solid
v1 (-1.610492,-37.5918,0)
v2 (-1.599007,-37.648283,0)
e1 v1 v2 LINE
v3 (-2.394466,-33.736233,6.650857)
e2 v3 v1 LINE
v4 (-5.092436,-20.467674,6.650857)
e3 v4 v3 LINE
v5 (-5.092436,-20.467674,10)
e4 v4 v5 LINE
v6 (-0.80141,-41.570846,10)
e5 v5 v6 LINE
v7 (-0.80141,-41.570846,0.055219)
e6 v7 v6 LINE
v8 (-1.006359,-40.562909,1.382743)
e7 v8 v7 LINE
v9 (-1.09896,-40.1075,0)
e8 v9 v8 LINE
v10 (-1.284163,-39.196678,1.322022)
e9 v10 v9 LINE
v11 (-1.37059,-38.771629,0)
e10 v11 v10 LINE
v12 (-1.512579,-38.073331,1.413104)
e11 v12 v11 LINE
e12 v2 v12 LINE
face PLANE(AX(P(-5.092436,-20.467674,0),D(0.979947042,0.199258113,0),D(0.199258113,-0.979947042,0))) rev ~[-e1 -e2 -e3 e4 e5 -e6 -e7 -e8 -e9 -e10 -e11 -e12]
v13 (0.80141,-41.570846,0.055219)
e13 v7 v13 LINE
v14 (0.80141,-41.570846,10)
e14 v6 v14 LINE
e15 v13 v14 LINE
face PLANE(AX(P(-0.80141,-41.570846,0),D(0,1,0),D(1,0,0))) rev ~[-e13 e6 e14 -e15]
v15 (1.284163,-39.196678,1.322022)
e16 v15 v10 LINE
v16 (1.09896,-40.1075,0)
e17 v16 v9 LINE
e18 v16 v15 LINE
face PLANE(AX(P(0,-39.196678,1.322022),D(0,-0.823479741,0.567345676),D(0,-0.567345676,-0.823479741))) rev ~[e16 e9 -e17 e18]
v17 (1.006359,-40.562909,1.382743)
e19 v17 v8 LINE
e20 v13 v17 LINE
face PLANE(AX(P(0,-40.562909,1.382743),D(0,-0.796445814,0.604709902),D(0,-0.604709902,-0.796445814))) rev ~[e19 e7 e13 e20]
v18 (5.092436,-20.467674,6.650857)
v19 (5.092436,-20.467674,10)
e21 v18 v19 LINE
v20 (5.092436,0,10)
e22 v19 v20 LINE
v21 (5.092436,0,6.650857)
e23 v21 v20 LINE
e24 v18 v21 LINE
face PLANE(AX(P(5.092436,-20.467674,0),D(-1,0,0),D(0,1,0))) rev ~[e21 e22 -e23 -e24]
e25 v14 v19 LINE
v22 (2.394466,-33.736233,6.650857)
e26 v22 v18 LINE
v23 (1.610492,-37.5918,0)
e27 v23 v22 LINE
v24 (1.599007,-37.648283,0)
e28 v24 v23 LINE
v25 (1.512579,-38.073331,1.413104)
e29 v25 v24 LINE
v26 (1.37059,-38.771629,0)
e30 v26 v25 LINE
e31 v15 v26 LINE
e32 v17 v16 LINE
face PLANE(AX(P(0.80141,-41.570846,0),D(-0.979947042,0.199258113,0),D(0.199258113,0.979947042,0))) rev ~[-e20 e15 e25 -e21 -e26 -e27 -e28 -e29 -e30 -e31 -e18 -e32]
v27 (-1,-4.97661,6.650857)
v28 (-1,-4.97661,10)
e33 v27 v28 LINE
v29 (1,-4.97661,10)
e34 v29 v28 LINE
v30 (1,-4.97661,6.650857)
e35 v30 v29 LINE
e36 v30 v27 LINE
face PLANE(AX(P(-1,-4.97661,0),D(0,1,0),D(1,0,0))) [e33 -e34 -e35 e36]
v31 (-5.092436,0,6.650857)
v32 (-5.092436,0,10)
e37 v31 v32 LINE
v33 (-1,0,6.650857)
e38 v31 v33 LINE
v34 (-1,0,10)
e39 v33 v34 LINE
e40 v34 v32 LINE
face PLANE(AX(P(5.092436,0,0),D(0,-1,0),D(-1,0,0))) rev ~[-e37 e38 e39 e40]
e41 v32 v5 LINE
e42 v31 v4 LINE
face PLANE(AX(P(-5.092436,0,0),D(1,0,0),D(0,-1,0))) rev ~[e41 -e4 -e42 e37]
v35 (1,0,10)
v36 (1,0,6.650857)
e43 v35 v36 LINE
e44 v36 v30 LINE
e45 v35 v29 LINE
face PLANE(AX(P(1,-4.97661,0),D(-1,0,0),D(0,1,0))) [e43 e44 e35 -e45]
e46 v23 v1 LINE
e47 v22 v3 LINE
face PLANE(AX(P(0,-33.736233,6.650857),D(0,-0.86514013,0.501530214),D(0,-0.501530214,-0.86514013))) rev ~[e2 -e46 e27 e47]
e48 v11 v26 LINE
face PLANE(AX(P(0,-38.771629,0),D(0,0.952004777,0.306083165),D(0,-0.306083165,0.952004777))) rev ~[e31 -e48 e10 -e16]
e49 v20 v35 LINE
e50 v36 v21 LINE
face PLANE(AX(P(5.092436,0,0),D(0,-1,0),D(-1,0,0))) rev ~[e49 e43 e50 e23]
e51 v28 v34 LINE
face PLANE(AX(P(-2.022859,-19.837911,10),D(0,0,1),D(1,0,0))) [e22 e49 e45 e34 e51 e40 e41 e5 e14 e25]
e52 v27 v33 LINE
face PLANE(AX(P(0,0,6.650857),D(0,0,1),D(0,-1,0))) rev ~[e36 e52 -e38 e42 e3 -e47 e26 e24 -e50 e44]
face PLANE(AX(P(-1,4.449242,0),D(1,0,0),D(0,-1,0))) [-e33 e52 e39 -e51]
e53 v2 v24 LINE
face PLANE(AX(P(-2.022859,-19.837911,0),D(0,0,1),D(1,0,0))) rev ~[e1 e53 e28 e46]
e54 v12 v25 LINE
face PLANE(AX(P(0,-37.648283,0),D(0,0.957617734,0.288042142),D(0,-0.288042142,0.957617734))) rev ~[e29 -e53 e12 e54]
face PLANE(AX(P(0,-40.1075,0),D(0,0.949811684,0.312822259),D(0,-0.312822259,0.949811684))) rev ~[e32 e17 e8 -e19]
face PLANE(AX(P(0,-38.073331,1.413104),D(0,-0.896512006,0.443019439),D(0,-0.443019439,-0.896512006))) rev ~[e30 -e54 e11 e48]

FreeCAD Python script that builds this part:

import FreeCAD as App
import Part
import Sketcher

V = App.Vector
Q = App.Units.Quantity

doc = App.newDocument("Part")
body = doc.addObject("PartDesign::Body", "Body")

sketch1 = body.newObject("Sketcher::SketchObject", "Sketch")
sketch1.AttachmentSupport = (doc.getObject("XY_Plane"), [""])
sketch1.MapMode = "FlatFace"
sketch1.addGeometry([
    Part.LineSegment(V(-5.1, 0, 0), V(-5.1, -20.5, 0)),
    Part.LineSegment(V(-5.1, -20.5, 0), V(-0.8, -41.6, 0)),
    Part.LineSegment(V(-0.8, -41.6, 0), V(0.8, -41.6, 0)),
    Part.LineSegment(V(0.8, -41.6, 0), V(5.1, -20.5, 0)),
    Part.LineSegment(V(5.1, -20.5, 0), V(5.1, 0, 0)),
    Part.LineSegment(V(5.1, 0, 0), V(-5.1, 0, 0)),
], False)
sketch1.addConstraint([
    Sketcher.Constraint("Coincident", 0, 2, 1, 1),
    Sketcher.Constraint("Coincident", 1, 2, 2, 1),
    Sketcher.Constraint("Coincident", 2, 2, 3, 1),
    Sketcher.Constraint("Coincident", 3, 2, 4, 1),
    Sketcher.Constraint("Coincident", 4, 2, 5, 1),
    Sketcher.Constraint("Coincident", 5, 2, 0, 1),
    Sketcher.Constraint("Vertical", 0),
    Sketcher.Constraint("Horizontal", 2),
    Sketcher.Constraint("Vertical", 4),
    Sketcher.Constraint("Horizontal", 5),
    Sketcher.Constraint("Symmetric", 4, 2, 5, 2, -1, 1),
    Sketcher.Constraint("Horizontal", 0, 2, 3, 2),
    Sketcher.Constraint("Equal", 1, 3),
    Sketcher.Constraint("DistanceX", 2, 1, 2, 2, Q("1.60282 mm")),
    Sketcher.Constraint("DistanceX", 5, 2, 5, 1, Q("10.184872 mm")),
    Sketcher.Constraint("DistanceY", 0, 2, 0, 1, Q("20.467674 mm")),
    Sketcher.Constraint("Distance", 1, Q("21.535013 mm")),
])
pad1 = body.newObject("PartDesign::Pad", "Pad")
pad1.Profile = sketch1
pad1.Length = 10

sketch2 = body.newObject("Sketcher::SketchObject", "Sketch001")
sketch2.AttachmentSupport = (doc.getObject("YZ_Plane"), [""])
sketch2.MapMode = "FlatFace"
sketch2.addGeometry([
    Part.LineSegment(V(-38, -13, 0), V(0, -9, 0)),
    Part.LineSegment(V(0, -9, 0), V(0, 7, 0)),
    Part.LineSegment(V(0, 7, 0), V(-34, 7, 0)),
    Part.LineSegment(V(-34, 7, 0), V(-38, 0, 0)),
    Part.LineSegment(V(-38, 0, 0), V(-38, -13, 0)),
], False)
sketch2.addConstraint([
    Sketcher.Constraint("Coincident", 0, 2, 1, 1),
    Sketcher.Constraint("Coincident", 1, 2, 2, 1),
    Sketcher.Constraint("Coincident", 2, 2, 3, 1),
    Sketcher.Constraint("Coincident", 3, 2, 4, 1),
    Sketcher.Constraint("Coincident", 4, 2, 0, 1),
    Sketcher.Constraint("Vertical", 1),
    Sketcher.Constraint("Horizontal", 2),
    Sketcher.Constraint("Vertical", 4),
    Sketcher.Constraint("PointOnObject", 0, 2, -2),
    Sketcher.Constraint("PointOnObject", 3, 2, -1),
    Sketcher.Constraint("DistanceY", 4, 2, 4, 1, Q("12.62699 mm")),
    Sketcher.Constraint("DistanceY", 0, 2, -1, 1, Q("8.964199 mm")),
    Sketcher.Constraint("DistanceX", 3, 2, -1, 1, Q("37.5918 mm")),
    Sketcher.Constraint("DistanceX", 2, 2, 2, 1, Q("33.736233 mm")),
    Sketcher.Constraint("DistanceY", 1, 1, 1, 2, Q("15.615056 mm")),
])
pocket1 = body.newObject("PartDesign::Pocket", "Pocket")
pocket1.Profile = sketch2
pocket1.Length = 25
pocket1.Midplane = True

sketch3 = body.newObject("Sketcher::SketchObject", "Sketch002")
sketch3.AttachmentSupport = (doc.getObject("YZ_Plane"), [""])
sketch3.MapMode = "FlatFace"
sketch3.addGeometry([
    Part.LineSegment(V(-40.6, 1.4, 0), V(-41.8, -0.3, 0)),
    Part.LineSegment(V(-41.8, -0.3, 0), V(-43.1, -1.6, 0)),
    Part.LineSegment(V(-43.1, -1.6, 0), V(-35.9, -1.9, 0)),
    Part.LineSegment(V(-35.9, -1.9, 0), V(-37.6, 0, 0)),
    Part.LineSegment(V(-37.6, 0, 0), V(-38.1, 1.4, 0)),
    Part.LineSegment(V(-38.1, 1.4, 0), V(-38.8, 0, 0)),
    Part.LineSegment(V(-38.8, 0, 0), V(-39.2, 1.3, 0)),
    Part.LineSegment(V(-39.2, 1.3, 0), V(-40.1, 0, 0)),
    Part.LineSegment(V(-40.1, 0, 0), V(-40.6, 1.4, 0)),
], False)
sketch3.addConstraint([
    Sketcher.Constraint("Coincident", 0, 2, 1, 1),
    Sketcher.Constraint("Coincident", 1, 2, 2, 1),
    Sketcher.Constraint("Coincident", 2, 2, 3, 1),
    Sketcher.Constraint("Coincident", 3, 2, 4, 1),
    Sketcher.Constraint("Coincident", 4, 2, 5, 1),
    Sketcher.Constraint("Coincident", 5, 2, 6, 1),
    Sketcher.Constraint("Coincident", 6, 2, 7, 1),
    Sketcher.Constraint("Coincident", 7, 2, 8, 1),
    Sketcher.Constraint("Coincident", 8, 2, 0, 1),
    Sketcher.Constraint("PointOnObject", 3, 2, -1),
    Sketcher.Constraint("PointOnObject", 5, 2, -1),
    Sketcher.Constraint("PointOnObject", 7, 2, -1),
    Sketcher.Constraint("DistanceX", 0, 2, -1, 1, Q("41.8077 mm")),
    Sketcher.Constraint("DistanceX", 7, 2, -1, 1, Q("40.1075 mm")),
    Sketcher.Constraint("Distance", 1, Q("1.846269 mm")),
    Sketcher.Constraint("Distance", 6, Q("1.388672 mm")),
    Sketcher.Constraint("Distance", 7, Q("1.605409 mm")),
    Sketcher.Constraint("DistanceX", 1, 2, -1, 1, Q("43.113209 mm")),
    Sketcher.Constraint("DistanceX", 2, 2, -1, 1, Q("35.917722 mm")),
    Sketcher.Constraint("DistanceX", 4, 2, -1, 1, Q("38.073331 mm")),
    Sketcher.Constraint("DistanceX", 5, 2, -1, 1, Q("38.771629 mm")),
    Sketcher.Constraint("DistanceX", 8, 2, -1, 1, Q("40.562909 mm")),
    Sketcher.Constraint("DistanceY", 2, 2, 0, 2, Q("1.669839 mm")),
    Sketcher.Constraint("DistanceX", 3, 2, 2, 2, Q("1.730561 mm")),
    Sketcher.Constraint("DistanceY", 2, 2, 4, 2, Q("3.339678 mm")),
    Sketcher.Constraint("DistanceY", 6, 2, 4, 2, Q("0.091082 mm")),
    Sketcher.Constraint("DistanceY", 6, 2, 8, 2, Q("0.060721 mm")),
])
pocket2 = body.newObject("PartDesign::Pocket", "Pocket001")
pocket2.Profile = sketch3
pocket2.Length = 25
pocket2.Midplane = True

sketch4 = body.newObject("Sketcher::SketchObject", "Sketch003")
sketch4.AttachmentSupport = (doc.getObject("XY_Plane"), [""])
sketch4.MapMode = "FlatFace"
sketch4.addGeometry([
    Part.LineSegment(V(1, 4.4, 0), V(-1, 4.4, 0)),
    Part.LineSegment(V(-1, 4.4, 0), V(-1, -5, 0)),
    Part.LineSegment(V(-1, -5, 0), V(1, -5, 0)),
    Part.LineSegment(V(1, -5, 0), V(1, 4.4, 0)),
], False)
sketch4.addConstraint([
    Sketcher.Constraint("Coincident", 0, 2, 1, 1),
    Sketcher.Constraint("Coincident", 1, 2, 2, 1),
    Sketcher.Constraint("Coincident", 2, 2, 3, 1),
    Sketcher.Constraint("Coincident", 3, 2, 0, 1),
    Sketcher.Constraint("Horizontal", 0),
    Sketcher.Constraint("Vertical", 1),
    Sketcher.Constraint("Horizontal", 2),
    Sketcher.Constraint("Vertical", 3),
    Sketcher.Constraint("DistanceX", 0, 2, 0, 1, Q("2 mm")),
    Sketcher.Constraint("DistanceX", 0, 2, -1, 1, Q("1 mm")),
    Sketcher.Constraint("DistanceY", 1, 2, 1, 1, Q("9.425852 mm")),
    Sketcher.Constraint("DistanceY", 1, 2, -1, 1, Q("4.97661 mm")),
])
pocket3 = body.newObject("PartDesign::Pocket", "Pocket002")
pocket3.Profile = sketch4
pocket3.Length = 74
pocket3.Reversed = True

doc.recompute()
